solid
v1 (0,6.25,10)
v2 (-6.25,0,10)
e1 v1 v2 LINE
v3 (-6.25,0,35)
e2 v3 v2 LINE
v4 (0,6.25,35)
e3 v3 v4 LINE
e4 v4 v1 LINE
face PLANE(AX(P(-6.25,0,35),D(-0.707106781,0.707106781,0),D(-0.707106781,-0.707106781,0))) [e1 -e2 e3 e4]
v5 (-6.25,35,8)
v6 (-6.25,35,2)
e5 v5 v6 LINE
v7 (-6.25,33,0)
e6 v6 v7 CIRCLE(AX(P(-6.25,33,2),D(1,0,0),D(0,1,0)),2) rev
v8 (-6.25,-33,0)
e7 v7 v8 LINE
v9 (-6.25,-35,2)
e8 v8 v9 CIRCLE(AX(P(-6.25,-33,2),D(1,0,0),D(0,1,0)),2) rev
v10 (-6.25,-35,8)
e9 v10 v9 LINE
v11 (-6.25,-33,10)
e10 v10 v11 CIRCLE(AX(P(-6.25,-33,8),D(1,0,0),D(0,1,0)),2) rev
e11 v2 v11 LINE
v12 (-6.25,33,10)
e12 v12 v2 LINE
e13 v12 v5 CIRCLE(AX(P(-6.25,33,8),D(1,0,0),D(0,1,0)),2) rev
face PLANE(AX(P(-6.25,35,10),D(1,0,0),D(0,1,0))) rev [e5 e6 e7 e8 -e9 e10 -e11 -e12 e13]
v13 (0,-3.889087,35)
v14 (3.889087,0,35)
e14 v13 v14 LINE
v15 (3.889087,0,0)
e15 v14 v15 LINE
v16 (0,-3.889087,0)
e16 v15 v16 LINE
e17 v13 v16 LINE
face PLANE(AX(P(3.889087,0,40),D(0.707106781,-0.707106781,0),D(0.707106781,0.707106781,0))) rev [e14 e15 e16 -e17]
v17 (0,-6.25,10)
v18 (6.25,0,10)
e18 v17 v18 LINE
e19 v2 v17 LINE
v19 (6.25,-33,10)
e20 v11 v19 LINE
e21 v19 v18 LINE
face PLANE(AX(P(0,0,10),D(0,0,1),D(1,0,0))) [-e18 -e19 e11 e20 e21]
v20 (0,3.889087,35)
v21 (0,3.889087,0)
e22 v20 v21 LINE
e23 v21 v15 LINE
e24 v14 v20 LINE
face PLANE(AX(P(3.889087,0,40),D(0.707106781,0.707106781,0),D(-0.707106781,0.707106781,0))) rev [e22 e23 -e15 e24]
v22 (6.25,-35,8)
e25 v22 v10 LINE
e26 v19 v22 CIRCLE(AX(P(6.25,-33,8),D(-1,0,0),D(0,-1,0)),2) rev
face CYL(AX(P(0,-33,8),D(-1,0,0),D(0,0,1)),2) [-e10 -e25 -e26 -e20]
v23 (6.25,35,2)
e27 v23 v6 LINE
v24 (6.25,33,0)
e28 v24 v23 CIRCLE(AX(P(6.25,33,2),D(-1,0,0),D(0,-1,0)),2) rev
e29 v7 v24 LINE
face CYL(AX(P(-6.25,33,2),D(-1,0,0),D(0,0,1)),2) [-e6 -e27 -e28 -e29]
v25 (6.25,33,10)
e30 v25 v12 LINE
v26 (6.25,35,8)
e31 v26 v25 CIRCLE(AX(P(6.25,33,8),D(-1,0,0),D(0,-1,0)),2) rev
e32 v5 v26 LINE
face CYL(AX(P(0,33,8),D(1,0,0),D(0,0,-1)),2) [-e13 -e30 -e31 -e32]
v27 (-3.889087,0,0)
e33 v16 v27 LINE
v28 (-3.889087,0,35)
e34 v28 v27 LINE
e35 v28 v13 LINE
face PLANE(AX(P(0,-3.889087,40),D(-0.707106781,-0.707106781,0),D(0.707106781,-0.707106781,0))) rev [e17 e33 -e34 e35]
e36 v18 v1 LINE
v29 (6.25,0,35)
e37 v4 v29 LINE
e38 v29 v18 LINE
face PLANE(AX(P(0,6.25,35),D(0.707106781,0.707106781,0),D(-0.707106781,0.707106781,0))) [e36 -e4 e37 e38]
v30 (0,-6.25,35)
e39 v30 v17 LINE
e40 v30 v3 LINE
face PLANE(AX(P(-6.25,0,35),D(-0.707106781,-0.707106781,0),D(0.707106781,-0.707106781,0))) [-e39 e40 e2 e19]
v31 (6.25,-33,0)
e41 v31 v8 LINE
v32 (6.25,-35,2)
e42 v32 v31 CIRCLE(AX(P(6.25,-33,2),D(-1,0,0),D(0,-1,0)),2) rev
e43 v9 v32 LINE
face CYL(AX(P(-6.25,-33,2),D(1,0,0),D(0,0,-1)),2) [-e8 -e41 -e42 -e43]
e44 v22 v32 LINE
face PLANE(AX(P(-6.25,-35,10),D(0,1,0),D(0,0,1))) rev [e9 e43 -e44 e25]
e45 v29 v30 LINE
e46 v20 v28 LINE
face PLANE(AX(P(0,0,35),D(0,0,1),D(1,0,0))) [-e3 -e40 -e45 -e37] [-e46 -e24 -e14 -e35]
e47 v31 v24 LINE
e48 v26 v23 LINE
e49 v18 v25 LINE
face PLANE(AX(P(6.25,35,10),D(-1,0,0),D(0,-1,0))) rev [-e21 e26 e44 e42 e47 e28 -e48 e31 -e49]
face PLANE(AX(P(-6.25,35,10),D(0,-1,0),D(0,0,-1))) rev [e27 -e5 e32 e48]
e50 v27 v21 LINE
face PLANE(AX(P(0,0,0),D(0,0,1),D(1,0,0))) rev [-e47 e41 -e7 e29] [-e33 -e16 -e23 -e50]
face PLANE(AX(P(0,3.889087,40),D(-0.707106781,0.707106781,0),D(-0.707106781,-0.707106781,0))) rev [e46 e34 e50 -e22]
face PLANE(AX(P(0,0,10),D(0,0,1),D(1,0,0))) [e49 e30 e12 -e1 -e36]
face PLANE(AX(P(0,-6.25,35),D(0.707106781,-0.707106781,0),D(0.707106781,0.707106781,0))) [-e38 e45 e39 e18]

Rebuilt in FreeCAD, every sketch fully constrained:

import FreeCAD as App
import Part
import Sketcher

V = App.Vector
Q = App.Units.Quantity


def edges_at(feature, points):
    """Names of the edges that pass closest to the given points."""
    edges = feature.Shape.Edges
    near = lambda p: min(range(len(edges)), key=lambda i: edges[i].distToShape(Part.Vertex(*p))[0])
    return sorted({f"Edge{near(p) + 1}" for p in points})

doc = App.newDocument("Part")
body = doc.addObject("PartDesign::Body", "Body")

# Sketch on XY plane
sketch1 = body.newObject("Sketcher::SketchObject", "Sketch")
sketch1.AttachmentSupport = (doc.getObject("XY_Plane"), [""])
sketch1.MapMode = "FlatFace"
sketch1.addGeometry(Part.LineSegment(V(-6, 35, 0), V(-6, -35, 0)), False)
sketch1.addGeometry(Part.LineSegment(V(-6, -35, 0), V(6, -35, 0)), False)
sketch1.addGeometry(Part.LineSegment(V(6, -35, 0), V(6, 35, 0)), False)
sketch1.addGeometry(Part.LineSegment(V(6, 35, 0), V(-6, 35, 0)), False)
sketch1.addConstraint(Sketcher.Constraint("Coincident", 0, 2, 1, 1))
sketch1.addConstraint(Sketcher.Constraint("Coincident", 1, 2, 2, 1))
sketch1.addConstraint(Sketcher.Constraint("Coincident", 2, 2, 3, 1))
sketch1.addConstraint(Sketcher.Constraint("Coincident", 3, 2, 0, 1))
sketch1.addConstraint(Sketcher.Constraint("Vertical", 0))
sketch1.addConstraint(Sketcher.Constraint("Horizontal", 1))
sketch1.addConstraint(Sketcher.Constraint("Vertical", 2))
sketch1.addConstraint(Sketcher.Constraint("Horizontal", 3))
sketch1.addConstraint(Sketcher.Constraint("Symmetric", 0, 2, 2, 2, -1, 1))
sketch1.addConstraint(Sketcher.Constraint("DistanceY", 0, 2, 0, 1, Q("70 mm")))
sketch1.addConstraint(Sketcher.Constraint("DistanceX", 1, 1, 1, 2, Q("12.5 mm")))
pad1 = body.newObject("PartDesign::Pad", "Pad")
pad1.Profile = sketch1
pad1.Length = 10

# Sketch on XY plane
sketch2 = body.newObject("Sketcher::SketchObject", "Sketch001")
sketch2.AttachmentSupport = (doc.getObject("XY_Plane"), [""])
sketch2.MapMode = "FlatFace"
sketch2.addGeometry(Part.LineSegment(V(-6, 0, 0), V(0, 6, 0)), False)
sketch2.addGeometry(Part.LineSegment(V(0, 6, 0), V(6, 0, 0)), False)
sketch2.addGeometry(Part.LineSegment(V(6, 0, 0), V(0, -6, 0)), False)
sketch2.addGeometry(Part.LineSegment(V(0, -6, 0), V(-6, 0, 0)), False)
sketch2.addConstraint(Sketcher.Constraint("Coincident", 0, 2, 1, 1))
sketch2.addConstraint(Sketcher.Constraint("Coincident", 1, 2, 2, 1))
sketch2.addConstraint(Sketcher.Constraint("Coincident", 2, 2, 3, 1))
sketch2.addConstraint(Sketcher.Constraint("Coincident", 3, 2, 0, 1))
sketch2.addConstraint(Sketcher.Constraint("Symmetric", 0, 2, 2, 2, -1, 1))
sketch2.addConstraint(Sketcher.Constraint("Symmetric", 1, 2, 3, 2, -1, 1))
sketch2.addConstraint(Sketcher.Constraint("PointOnObject", 0, 2, -2))
sketch2.addConstraint(Sketcher.Constraint("PointOnObject", 1, 2, -1))
sketch2.addConstraint(Sketcher.Constraint("Perpendicular", 0, 1))
sketch2.addConstraint(Sketcher.Constraint("DistanceY", 2, 2, 0, 2, Q("12.5 mm")))
pad2 = body.newObject("PartDesign::Pad", "Pad001")
pad2.Profile = sketch2
pad2.Length = 35

# Sketch on XY plane
sketch3 = body.newObject("Sketcher::SketchObject", "Sketch002")
sketch3.AttachmentSupport = (doc.getObject("XY_Plane"), [""])
sketch3.MapMode = "FlatFace"
sketch3.addGeometry(Part.LineSegment(V(0, 4, 0), V(4, 0, 0)), False)
sketch3.addGeometry(Part.LineSegment(V(4, 0, 0), V(0, -4, 0)), False)
sketch3.addGeometry(Part.LineSegment(V(0, -4, 0), V(-4, 0, 0)), False)
sketch3.addGeometry(Part.LineSegment(V(-4, 0, 0), V(0, 4, 0)), False)
sketch3.addConstraint(Sketcher.Constraint("Coincident", 0, 2, 1, 1))
sketch3.addConstraint(Sketcher.Constraint("Coincident", 1, 2, 2, 1))
sketch3.addConstraint(Sketcher.Constraint("Coincident", 2, 2, 3, 1))
sketch3.addConstraint(Sketcher.Constraint("Coincident", 3, 2, 0, 1))
sketch3.addConstraint(Sketcher.Constraint("Symmetric", 0, 2, 2, 2, -1, 1))
sketch3.addConstraint(Sketcher.Constraint("Symmetric", 1, 2, 3, 2, -1, 1))
sketch3.addConstraint(Sketcher.Constraint("PointOnObject", 0, 2, -1))
sketch3.addConstraint(Sketcher.Constraint("PointOnObject", 1, 2, -2))
sketch3.addConstraint(Sketcher.Constraint("Perpendicular", 0, 1))
sketch3.addConstraint(Sketcher.Constraint("Distance", 0, Q("5.5 mm")))
pocket1 = body.newObject("PartDesign::Pocket", "Pocket")
pocket1.Profile = sketch3
pocket1.Length = 40
pocket1.Reversed = True
doc.recompute()

fillet = body.newObject("PartDesign::Fillet", "Fillet")
fillet.Base = (pocket1, edges_at(pocket1, [
    (0, -35, 10),
    (0, -35, 0),
    (0, 35, 0),
    (0, 35, 10),
]))
fillet.Radius = 2

doc.recompute()
